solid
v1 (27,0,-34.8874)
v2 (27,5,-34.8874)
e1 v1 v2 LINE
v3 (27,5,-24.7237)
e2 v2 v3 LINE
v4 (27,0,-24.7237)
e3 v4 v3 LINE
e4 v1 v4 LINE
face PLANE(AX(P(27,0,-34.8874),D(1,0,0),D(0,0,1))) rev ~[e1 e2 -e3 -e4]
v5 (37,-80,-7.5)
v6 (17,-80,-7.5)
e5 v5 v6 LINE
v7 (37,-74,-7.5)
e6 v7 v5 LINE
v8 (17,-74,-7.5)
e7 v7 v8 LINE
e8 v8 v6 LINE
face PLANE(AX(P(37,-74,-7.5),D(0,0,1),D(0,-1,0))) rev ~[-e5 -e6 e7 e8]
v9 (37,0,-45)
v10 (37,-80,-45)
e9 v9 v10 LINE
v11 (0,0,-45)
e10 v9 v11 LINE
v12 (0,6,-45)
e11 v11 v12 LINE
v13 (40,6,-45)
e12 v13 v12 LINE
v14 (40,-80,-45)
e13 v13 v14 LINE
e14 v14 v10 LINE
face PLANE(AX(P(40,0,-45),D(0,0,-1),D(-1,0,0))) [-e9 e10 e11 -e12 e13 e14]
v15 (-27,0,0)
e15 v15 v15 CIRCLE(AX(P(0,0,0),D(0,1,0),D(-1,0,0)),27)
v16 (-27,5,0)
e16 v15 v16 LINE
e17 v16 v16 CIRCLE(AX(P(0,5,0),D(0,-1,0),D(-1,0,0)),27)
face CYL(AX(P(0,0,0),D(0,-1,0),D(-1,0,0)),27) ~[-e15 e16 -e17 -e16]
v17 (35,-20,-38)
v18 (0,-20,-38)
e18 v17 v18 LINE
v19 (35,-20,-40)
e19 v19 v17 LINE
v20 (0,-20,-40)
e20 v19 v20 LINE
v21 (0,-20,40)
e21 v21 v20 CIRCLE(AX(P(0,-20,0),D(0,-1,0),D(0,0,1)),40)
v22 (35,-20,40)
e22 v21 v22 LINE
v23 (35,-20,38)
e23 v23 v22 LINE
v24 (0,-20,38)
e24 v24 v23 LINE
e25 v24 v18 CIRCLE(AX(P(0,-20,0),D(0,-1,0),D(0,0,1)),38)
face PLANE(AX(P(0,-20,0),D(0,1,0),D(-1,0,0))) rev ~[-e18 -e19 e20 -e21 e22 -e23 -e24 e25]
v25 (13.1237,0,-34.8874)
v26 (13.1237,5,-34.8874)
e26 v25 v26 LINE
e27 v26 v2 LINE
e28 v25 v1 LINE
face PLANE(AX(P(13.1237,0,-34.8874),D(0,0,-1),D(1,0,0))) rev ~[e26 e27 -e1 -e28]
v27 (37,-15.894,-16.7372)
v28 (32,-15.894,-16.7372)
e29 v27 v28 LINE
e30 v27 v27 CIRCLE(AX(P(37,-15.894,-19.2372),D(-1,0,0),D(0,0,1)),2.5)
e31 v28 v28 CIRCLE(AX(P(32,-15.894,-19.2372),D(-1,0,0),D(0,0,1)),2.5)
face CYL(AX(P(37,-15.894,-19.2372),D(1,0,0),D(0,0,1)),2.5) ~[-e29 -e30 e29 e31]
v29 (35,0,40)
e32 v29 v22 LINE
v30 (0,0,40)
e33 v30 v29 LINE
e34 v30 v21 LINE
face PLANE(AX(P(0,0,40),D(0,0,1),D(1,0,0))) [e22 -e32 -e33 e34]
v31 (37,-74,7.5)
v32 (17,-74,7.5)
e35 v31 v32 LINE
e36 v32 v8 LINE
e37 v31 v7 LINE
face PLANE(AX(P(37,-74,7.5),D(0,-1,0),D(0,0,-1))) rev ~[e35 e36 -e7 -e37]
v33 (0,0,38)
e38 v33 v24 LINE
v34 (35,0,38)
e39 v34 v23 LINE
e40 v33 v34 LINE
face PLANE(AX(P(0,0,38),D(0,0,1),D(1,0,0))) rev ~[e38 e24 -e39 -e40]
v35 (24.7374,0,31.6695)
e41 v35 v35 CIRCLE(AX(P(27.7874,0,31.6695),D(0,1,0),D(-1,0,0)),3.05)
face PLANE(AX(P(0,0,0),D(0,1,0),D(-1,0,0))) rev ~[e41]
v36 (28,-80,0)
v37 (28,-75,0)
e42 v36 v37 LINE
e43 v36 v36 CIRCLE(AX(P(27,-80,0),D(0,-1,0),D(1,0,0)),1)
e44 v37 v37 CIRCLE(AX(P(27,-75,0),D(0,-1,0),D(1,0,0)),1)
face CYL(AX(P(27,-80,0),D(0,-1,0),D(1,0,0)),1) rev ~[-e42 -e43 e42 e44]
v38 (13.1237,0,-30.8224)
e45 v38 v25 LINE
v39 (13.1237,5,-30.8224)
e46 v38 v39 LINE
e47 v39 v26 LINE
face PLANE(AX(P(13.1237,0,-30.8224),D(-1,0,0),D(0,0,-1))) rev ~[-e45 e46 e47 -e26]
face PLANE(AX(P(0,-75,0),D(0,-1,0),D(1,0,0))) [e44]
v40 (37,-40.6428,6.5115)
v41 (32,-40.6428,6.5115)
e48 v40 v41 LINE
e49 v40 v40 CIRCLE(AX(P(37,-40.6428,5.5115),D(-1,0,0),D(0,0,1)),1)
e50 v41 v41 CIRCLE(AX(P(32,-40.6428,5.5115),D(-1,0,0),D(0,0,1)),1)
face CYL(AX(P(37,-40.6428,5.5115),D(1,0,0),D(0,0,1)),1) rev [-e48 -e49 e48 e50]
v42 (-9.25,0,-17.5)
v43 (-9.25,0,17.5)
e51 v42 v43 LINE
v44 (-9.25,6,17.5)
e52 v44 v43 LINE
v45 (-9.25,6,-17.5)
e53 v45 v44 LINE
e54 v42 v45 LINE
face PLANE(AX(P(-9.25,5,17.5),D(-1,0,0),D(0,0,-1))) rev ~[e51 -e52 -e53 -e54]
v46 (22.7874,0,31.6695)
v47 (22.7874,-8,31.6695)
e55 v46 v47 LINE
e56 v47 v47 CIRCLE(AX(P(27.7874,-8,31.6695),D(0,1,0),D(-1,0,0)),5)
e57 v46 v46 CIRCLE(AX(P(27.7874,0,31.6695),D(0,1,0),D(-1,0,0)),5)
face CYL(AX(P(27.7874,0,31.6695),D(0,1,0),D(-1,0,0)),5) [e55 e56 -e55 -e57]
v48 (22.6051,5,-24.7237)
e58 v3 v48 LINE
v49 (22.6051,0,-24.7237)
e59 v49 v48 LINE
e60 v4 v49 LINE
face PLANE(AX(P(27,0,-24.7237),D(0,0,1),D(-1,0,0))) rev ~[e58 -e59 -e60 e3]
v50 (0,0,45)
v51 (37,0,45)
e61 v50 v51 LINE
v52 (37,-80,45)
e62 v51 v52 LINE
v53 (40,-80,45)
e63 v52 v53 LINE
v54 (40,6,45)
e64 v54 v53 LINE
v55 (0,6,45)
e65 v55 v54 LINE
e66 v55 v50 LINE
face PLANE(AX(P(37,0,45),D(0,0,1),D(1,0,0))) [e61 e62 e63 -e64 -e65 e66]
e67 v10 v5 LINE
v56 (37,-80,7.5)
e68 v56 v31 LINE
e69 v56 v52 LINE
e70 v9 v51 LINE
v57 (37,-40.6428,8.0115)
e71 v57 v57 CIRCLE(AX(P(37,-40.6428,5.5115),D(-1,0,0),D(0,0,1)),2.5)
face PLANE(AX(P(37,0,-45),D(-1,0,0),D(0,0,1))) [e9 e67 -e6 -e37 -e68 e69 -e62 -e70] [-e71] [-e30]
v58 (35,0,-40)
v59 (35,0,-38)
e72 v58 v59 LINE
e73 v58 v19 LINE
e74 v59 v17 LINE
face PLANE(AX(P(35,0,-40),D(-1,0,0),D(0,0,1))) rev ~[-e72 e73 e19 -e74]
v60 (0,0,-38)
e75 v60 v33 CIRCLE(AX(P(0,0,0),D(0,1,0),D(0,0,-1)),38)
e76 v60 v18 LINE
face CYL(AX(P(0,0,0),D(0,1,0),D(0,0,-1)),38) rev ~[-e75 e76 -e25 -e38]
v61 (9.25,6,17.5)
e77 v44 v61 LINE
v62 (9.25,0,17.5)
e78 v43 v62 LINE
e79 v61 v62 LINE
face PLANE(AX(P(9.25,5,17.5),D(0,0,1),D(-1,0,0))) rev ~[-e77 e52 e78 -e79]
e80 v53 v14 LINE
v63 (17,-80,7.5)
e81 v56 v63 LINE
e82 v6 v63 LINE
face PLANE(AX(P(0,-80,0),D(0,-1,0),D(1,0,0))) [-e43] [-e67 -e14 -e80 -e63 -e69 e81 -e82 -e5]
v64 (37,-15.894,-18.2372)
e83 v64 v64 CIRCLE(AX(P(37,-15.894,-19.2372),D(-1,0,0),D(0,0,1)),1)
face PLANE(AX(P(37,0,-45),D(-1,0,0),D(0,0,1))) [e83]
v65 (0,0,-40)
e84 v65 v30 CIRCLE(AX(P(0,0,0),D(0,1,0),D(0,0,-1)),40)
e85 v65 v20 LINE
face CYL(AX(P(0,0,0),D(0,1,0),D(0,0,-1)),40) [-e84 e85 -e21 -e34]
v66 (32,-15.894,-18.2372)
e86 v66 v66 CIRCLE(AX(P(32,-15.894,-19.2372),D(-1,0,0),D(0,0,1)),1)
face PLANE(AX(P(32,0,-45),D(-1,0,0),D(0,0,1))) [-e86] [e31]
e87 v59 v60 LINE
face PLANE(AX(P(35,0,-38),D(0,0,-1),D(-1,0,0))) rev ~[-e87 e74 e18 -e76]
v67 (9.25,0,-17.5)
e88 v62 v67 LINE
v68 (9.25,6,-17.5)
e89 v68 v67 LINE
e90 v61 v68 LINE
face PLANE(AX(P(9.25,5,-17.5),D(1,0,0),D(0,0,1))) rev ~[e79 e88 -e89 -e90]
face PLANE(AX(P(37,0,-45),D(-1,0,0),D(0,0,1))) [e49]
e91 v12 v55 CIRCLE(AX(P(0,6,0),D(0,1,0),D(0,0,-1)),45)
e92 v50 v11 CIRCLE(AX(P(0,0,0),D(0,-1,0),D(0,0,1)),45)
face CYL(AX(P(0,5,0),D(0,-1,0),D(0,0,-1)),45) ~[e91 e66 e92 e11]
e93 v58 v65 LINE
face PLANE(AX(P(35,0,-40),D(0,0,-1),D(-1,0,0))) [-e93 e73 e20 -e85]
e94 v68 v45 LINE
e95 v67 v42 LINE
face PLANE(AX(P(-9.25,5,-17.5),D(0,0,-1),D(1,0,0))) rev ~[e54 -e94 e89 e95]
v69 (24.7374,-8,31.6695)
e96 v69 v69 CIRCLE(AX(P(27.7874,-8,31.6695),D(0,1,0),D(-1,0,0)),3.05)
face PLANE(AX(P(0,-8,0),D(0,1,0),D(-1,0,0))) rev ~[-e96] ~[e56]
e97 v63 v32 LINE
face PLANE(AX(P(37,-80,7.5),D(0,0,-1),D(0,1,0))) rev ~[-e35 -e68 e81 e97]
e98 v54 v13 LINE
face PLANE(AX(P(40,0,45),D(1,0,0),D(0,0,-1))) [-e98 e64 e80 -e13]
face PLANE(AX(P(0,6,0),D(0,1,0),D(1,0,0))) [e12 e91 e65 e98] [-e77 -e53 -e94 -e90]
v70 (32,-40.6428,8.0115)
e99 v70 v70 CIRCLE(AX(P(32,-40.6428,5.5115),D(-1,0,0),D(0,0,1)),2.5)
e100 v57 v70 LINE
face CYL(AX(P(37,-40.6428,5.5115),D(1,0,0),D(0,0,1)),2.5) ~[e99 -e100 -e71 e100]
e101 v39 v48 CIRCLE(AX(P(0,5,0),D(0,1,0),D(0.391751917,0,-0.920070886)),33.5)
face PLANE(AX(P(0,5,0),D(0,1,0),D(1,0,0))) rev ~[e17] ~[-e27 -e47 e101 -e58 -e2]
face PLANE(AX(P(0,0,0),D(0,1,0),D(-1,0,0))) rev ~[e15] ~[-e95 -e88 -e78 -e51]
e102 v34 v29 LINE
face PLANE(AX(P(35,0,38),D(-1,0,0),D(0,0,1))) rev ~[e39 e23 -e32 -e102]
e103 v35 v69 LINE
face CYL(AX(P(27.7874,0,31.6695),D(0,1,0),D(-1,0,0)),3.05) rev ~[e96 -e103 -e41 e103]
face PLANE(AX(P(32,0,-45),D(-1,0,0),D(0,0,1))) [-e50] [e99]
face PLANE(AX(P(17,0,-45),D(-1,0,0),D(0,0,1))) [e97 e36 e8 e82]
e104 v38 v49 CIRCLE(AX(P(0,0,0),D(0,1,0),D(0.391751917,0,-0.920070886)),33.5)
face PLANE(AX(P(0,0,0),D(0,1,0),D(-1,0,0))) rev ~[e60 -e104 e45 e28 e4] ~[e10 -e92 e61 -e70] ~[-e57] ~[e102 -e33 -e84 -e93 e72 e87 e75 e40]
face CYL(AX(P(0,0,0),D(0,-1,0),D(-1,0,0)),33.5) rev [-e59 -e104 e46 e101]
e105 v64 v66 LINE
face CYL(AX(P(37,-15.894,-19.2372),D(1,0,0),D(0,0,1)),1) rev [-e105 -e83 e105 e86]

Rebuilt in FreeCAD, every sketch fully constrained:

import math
import FreeCAD as App
import Part
import Sketcher
Q = App.Units.Quantity


def add_polygon(sketch, points):
    """Adds a closed chain of lines whose ends are joined by coincident constraints."""
    first, n = sketch.GeometryCount, len(points)
    for a, b in zip(points, points[1:] + points[:1]):
        sketch.addGeometry(Part.LineSegment(App.Vector(*a, 0), App.Vector(*b, 0)), False)
    for i in range(n):
        sketch.addConstraint(Sketcher.Constraint("Coincident", first + i, 2, first + (i + 1) % n, 1))

doc = App.newDocument("Part")
body = doc.addObject("PartDesign::Body", "Body")
body.AllowCompound = True

# Sketch on XZ plane
sketch1 = doc.addObject("Sketcher::SketchObject", "Sketch")
body.addObject(sketch1)
sketch1.AttachmentSupport = (doc.XZ_Plane, [""])
sketch1.MapMode = "FlatFace"
sketch1.addGeometry(Part.LineSegment(App.Vector(40, 45, 0), App.Vector(40, -45, 0)), False)  # 0
sketch1.addGeometry(Part.LineSegment(App.Vector(40, -45, 0), App.Vector(0, -45, 0)), False)  # 1
sketch1.addGeometry(Part.ArcOfCircle(Part.Circle(App.Vector(0, 0, 0), App.Vector(0, 0, 1), 45), math.radians(90), math.radians(270)), False)  # 2
sketch1.addGeometry(Part.LineSegment(App.Vector(0, 45, 0), App.Vector(40, 45, 0)), False)  # 3
sketch1.addGeometry(Part.Circle(App.Vector(0, 0, 0), App.Vector(0, 0, 1), 34), False)  # 4
sketch1.addGeometry(Part.Circle(App.Vector(0, 0, 0), App.Vector(0, 0, 1), 27), False)  # 5
add_polygon(sketch1, [(-9, -18), (9, -18), (9, 18), (-9, 18)])  # lines 6-9
sketch1.addConstraint(Sketcher.Constraint("Coincident", 0, 2, 1, 1))
sketch1.addConstraint(Sketcher.Constraint("Tangent", 1, 2, 2, 2))
sketch1.addConstraint(Sketcher.Constraint("Tangent", 2, 1, 3, 1))
sketch1.addConstraint(Sketcher.Constraint("Coincident", 3, 2, 0, 1))
sketch1.addConstraint(Sketcher.Constraint("Vertical", 0))
sketch1.addConstraint(Sketcher.Constraint("Horizontal", 1))
sketch1.addConstraint(Sketcher.Constraint("Horizontal", 3))
sketch1.addConstraint(Sketcher.Constraint("Horizontal", 6))
sketch1.addConstraint(Sketcher.Constraint("Vertical", 7))
sketch1.addConstraint(Sketcher.Constraint("Horizontal", 8))
sketch1.addConstraint(Sketcher.Constraint("Vertical", 9))
sketch1.addConstraint(Sketcher.Constraint("Coincident", 2, 3, -1, 1))
sketch1.addConstraint(Sketcher.Constraint("Coincident", 4, 3, -1, 1))
sketch1.addConstraint(Sketcher.Constraint("Coincident", 5, 3, -1, 1))
sketch1.addConstraint(Sketcher.Constraint("Symmetric", 6, 2, 8, 2, -1, 1))
sketch1.addConstraint(Sketcher.Constraint("Diameter", 4, Q("67 mm")))
sketch1.addConstraint(Sketcher.Constraint("Diameter", 5, Q("54 mm")))
sketch1.addConstraint(Sketcher.Constraint("DistanceY", 7, 1, 7, 2, Q("35 mm")))
sketch1.addConstraint(Sketcher.Constraint("DistanceX", 6, 1, 6, 2, Q("18.5 mm")))
sketch1.addConstraint(Sketcher.Constraint("Radius", 2, Q("45 mm")))
sketch1.addConstraint(Sketcher.Constraint("DistanceX", 1, 2, 1, 1, Q("40 mm")))
pad1 = doc.addObject("PartDesign::Pad", "Pad")
body.addObject(pad1)
pad1.Profile = sketch1
pad1.Length = 5
pad1.Reversed = True

# Sketch on XZ plane
sketch2 = doc.addObject("Sketcher::SketchObject", "Sketch001")
body.addObject(sketch2)
sketch2.AttachmentSupport = (doc.XZ_Plane, [""])
sketch2.MapMode = "FlatFace"
sketch2.AttachmentOffset = App.Placement(App.Vector(0, 0, -5), App.Rotation())
sketch2.addGeometry(Part.LineSegment(App.Vector(40, 45, 0), App.Vector(40, -45, 0)), False)
sketch2.addGeometry(Part.LineSegment(App.Vector(40, -45, 0), App.Vector(0, -45, 0)), False)
sketch2.addGeometry(Part.ArcOfCircle(Part.Circle(App.Vector(0, 0, 0), App.Vector(0, 0, 1), 45), math.radians(90), math.radians(270)), False)
sketch2.addGeometry(Part.LineSegment(App.Vector(0, 45, 0), App.Vector(40, 45, 0)), False)
sketch2.addConstraint(Sketcher.Constraint("Coincident", 0, 2, 1, 1))
sketch2.addConstraint(Sketcher.Constraint("Tangent", 1, 2, 2, 2))
sketch2.addConstraint(Sketcher.Constraint("Tangent", 2, 1, 3, 1))
sketch2.addConstraint(Sketcher.Constraint("Coincident", 3, 2, 0, 1))
sketch2.addConstraint(Sketcher.Constraint("Vertical", 0))
sketch2.addConstraint(Sketcher.Constraint("Horizontal", 1))
sketch2.addConstraint(Sketcher.Constraint("Horizontal", 3))
sketch2.addConstraint(Sketcher.Constraint("Coincident", 2, 3, -1, 1))
sketch2.addConstraint(Sketcher.Constraint("Radius", 2, Q("45 mm")))
sketch2.addConstraint(Sketcher.Constraint("DistanceX", 1, 2, 1, 1, Q("40 mm")))
pad2 = doc.addObject("PartDesign::Pad", "Pad001")
body.addObject(pad2)
pad2.Profile = sketch2
pad2.Length = 1
pad2.Reversed = True

# Sketch on XZ plane
sketch3 = doc.addObject("Sketcher::SketchObject", "Sketch002")
body.addObject(sketch3)
sketch3.AttachmentSupport = (doc.XZ_Plane, [""])
sketch3.MapMode = "FlatFace"
sketch3.AttachmentOffset = App.Placement(App.Vector(0, 0, -5), App.Rotation())
add_polygon(sketch3, [(-9, 18), (-9, -18), (9, -18), (9, 18)])  # lines 0-3
sketch3.addConstraint(Sketcher.Constraint("Vertical", 0))
sketch3.addConstraint(Sketcher.Constraint("Horizontal", 1))
sketch3.addConstraint(Sketcher.Constraint("Vertical", 2))
sketch3.addConstraint(Sketcher.Constraint("Horizontal", 3))
sketch3.addConstraint(Sketcher.Constraint("Symmetric", 0, 2, 2, 2, -1, 1))
sketch3.addConstraint(Sketcher.Constraint("DistanceY", 0, 2, 0, 1, Q("35 mm")))
sketch3.addConstraint(Sketcher.Constraint("DistanceX", 1, 1, 1, 2, Q("18.5 mm")))
pocket1 = doc.addObject("PartDesign::Pocket", "Pocket")
body.addObject(pocket1)
pocket1.Profile = sketch3
pocket1.Type = "ThroughAll"

# Sketch on XZ plane
sketch4 = doc.addObject("Sketcher::SketchObject", "Sketch003")
body.addObject(sketch4)
sketch4.AttachmentSupport = (doc.XZ_Plane, [""])
sketch4.MapMode = "FlatFace"
sketch4.addGeometry(Part.LineSegment(App.Vector(13.1, -34.9, 0), App.Vector(13.1, -30.8, 0)), False)
sketch4.addGeometry(Part.ArcOfCircle(Part.Circle(App.Vector(0, 0, 0), App.Vector(0, 0, 1), 33.5), math.radians(-66.94), math.radians(-47.56)), False)
sketch4.addGeometry(Part.LineSegment(App.Vector(22.6, -24.7, 0), App.Vector(27, -24.7, 0)), False)
sketch4.addGeometry(Part.LineSegment(App.Vector(27, -24.7, 0), App.Vector(27, -34.9, 0)), False)
sketch4.addGeometry(Part.LineSegment(App.Vector(27, -34.9, 0), App.Vector(13.1, -34.9, 0)), False)
sketch4.addConstraint(Sketcher.Constraint("Coincident", 0, 2, 1, 1))
sketch4.addConstraint(Sketcher.Constraint("Coincident", 1, 2, 2, 1))
sketch4.addConstraint(Sketcher.Constraint("Coincident", 2, 2, 3, 1))
sketch4.addConstraint(Sketcher.Constraint("Coincident", 3, 2, 4, 1))
sketch4.addConstraint(Sketcher.Constraint("Coincident", 4, 2, 0, 1))
sketch4.addConstraint(Sketcher.Constraint("Vertical", 0))
sketch4.addConstraint(Sketcher.Constraint("Horizontal", 2))
sketch4.addConstraint(Sketcher.Constraint("Vertical", 3))
sketch4.addConstraint(Sketcher.Constraint("Horizontal", 4))
sketch4.addConstraint(Sketcher.Constraint("Coincident", 1, 3, -1, 1))
sketch4.addConstraint(Sketcher.Constraint("Radius", 1, Q("33.5 mm")))
sketch4.addConstraint(Sketcher.Constraint("DistanceX", -1, 1, 2, 2, Q("27 mm")))
sketch4.addConstraint(Sketcher.Constraint("DistanceX", 2, 1, 2, 2, Q("4.395 mm")))
sketch4.addConstraint(Sketcher.Constraint("DistanceY", 0, 1, 0, 2, Q("4.065 mm")))
sketch4.addConstraint(Sketcher.Constraint("DistanceX", 4, 2, 4, 1, Q("13.8763 mm")))
pocket2 = doc.addObject("PartDesign::Pocket", "Pocket001")
body.addObject(pocket2)
pocket2.Profile = sketch4
pocket2.Length = 5

# Sketch on XZ plane
sketch5 = doc.addObject("Sketcher::SketchObject", "Sketch004")
body.addObject(sketch5)
sketch5.AttachmentSupport = (doc.XZ_Plane, [""])
sketch5.MapMode = "FlatFace"
add_polygon(sketch5, [(37, -45), (40, -45), (40, 45), (37, 45)])  # lines 0-3
sketch5.addConstraint(Sketcher.Constraint("Horizontal", 0))
sketch5.addConstraint(Sketcher.Constraint("Vertical", 1))
sketch5.addConstraint(Sketcher.Constraint("Horizontal", 2))
sketch5.addConstraint(Sketcher.Constraint("Vertical", 3))
sketch5.addConstraint(Sketcher.Constraint("DistanceX", 0, 1, 0, 2, Q("3 mm")))
sketch5.addConstraint(Sketcher.Constraint("DistanceY", 1, 1, 1, 2, Q("90 mm")))
sketch5.addConstraint(Sketcher.Constraint("DistanceX", -1, 1, 0, 2, Q("40 mm")))
sketch5.addConstraint(Sketcher.Constraint("DistanceY", 0, 2, -1, 1, Q("45 mm")))
pad3 = doc.addObject("PartDesign::Pad", "Pad002")
body.addObject(pad3)
pad3.Profile = sketch5
pad3.Length = 80

# Sketch on XZ plane
sketch6 = doc.addObject("Sketcher::SketchObject", "Sketch005")
body.addObject(sketch6)
sketch6.AttachmentSupport = (doc.XZ_Plane, [""])
sketch6.MapMode = "FlatFace"
sketch6.addGeometry(Part.Circle(App.Vector(27.8, 31.7, 0), App.Vector(0, 0, 1), 5), False)
sketch6.addGeometry(Part.Circle(App.Vector(27.8, 31.7, 0), App.Vector(0, 0, 1), 3), False)
sketch6.addConstraint(Sketcher.Constraint("Coincident", 1, 3, 0, 3))
sketch6.addConstraint(Sketcher.Constraint("Diameter", 0, Q("10 mm")))
sketch6.addConstraint(Sketcher.Constraint("Diameter", 1, Q("6.1 mm")))
sketch6.addConstraint(Sketcher.Constraint("DistanceX", -1, 1, 0, 3, Q("27.7874 mm")))
sketch6.addConstraint(Sketcher.Constraint("DistanceY", -1, 1, 0, 3, Q("31.6695 mm")))
pad4 = doc.addObject("PartDesign::Pad", "Pad003")
body.addObject(pad4)
pad4.Profile = sketch6
pad4.Length = 8

# Sketch on XZ plane
sketch7 = doc.addObject("Sketcher::SketchObject", "Sketch006")
body.addObject(sketch7)
sketch7.AttachmentSupport = (doc.XZ_Plane, [""])
sketch7.MapMode = "FlatFace"
sketch7.addGeometry(Part.ArcOfCircle(Part.Circle(App.Vector(0, 0, 0), App.Vector(0, 0, 1), 38), math.radians(90), math.radians(270)), False)
sketch7.addGeometry(Part.LineSegment(App.Vector(0, -38, 0), App.Vector(35, -38, 0)), False)
sketch7.addGeometry(Part.LineSegment(App.Vector(35, -38, 0), App.Vector(35, -40, 0)), False)
sketch7.addGeometry(Part.LineSegment(App.Vector(35, -40, 0), App.Vector(0, -40, 0)), False)
sketch7.addGeometry(Part.ArcOfCircle(Part.Circle(App.Vector(0, 0, 0), App.Vector(0, 0, 1), 40), math.radians(90), math.radians(270)), False)
sketch7.addGeometry(Part.LineSegment(App.Vector(0, 40, 0), App.Vector(35, 40, 0)), False)
sketch7.addGeometry(Part.LineSegment(App.Vector(35, 40, 0), App.Vector(35, 38, 0)), False)
sketch7.addGeometry(Part.LineSegment(App.Vector(35, 38, 0), App.Vector(0, 38, 0)), False)
sketch7.addConstraint(Sketcher.Constraint("Tangent", 0, 2, 1, 1))
sketch7.addConstraint(Sketcher.Constraint("Coincident", 1, 2, 2, 1))
sketch7.addConstraint(Sketcher.Constraint("Coincident", 2, 2, 3, 1))
sketch7.addConstraint(Sketcher.Constraint("Tangent", 3, 2, 4, 2))
sketch7.addConstraint(Sketcher.Constraint("Tangent", 4, 1, 5, 1))
sketch7.addConstraint(Sketcher.Constraint("Coincident", 5, 2, 6, 1))
sketch7.addConstraint(Sketcher.Constraint("Coincident", 6, 2, 7, 1))
sketch7.addConstraint(Sketcher.Constraint("Tangent", 7, 2, 0, 1))
sketch7.addConstraint(Sketcher.Constraint("Horizontal", 1))
sketch7.addConstraint(Sketcher.Constraint("Vertical", 2))
sketch7.addConstraint(Sketcher.Constraint("Horizontal", 3))
sketch7.addConstraint(Sketcher.Constraint("Horizontal", 5))
sketch7.addConstraint(Sketcher.Constraint("Vertical", 6))
sketch7.addConstraint(Sketcher.Constraint("Horizontal", 7))
sketch7.addConstraint(Sketcher.Constraint("Coincident", 0, 3, -1, 1))
sketch7.addConstraint(Sketcher.Constraint("Coincident", 4, 3, -1, 1))
sketch7.addConstraint(Sketcher.Constraint("Vertical", 2, 2, 5, 2))
sketch7.addConstraint(Sketcher.Constraint("DistanceX", 1, 1, 1, 2, Q("35 mm")))
sketch7.addConstraint(Sketcher.Constraint("DistanceY", 2, 2, 2, 1, Q("2 mm")))
sketch7.addConstraint(Sketcher.Constraint("Radius", 0, Q("38 mm")))
pad5 = doc.addObject("PartDesign::Pad", "Pad004")
body.addObject(pad5)
pad5.Profile = sketch7
pad5.Length = 20

# Sketch on YZ plane
sketch8 = doc.addObject("Sketcher::SketchObject", "Sketch007")
body.addObject(sketch8)
sketch8.AttachmentSupport = (doc.YZ_Plane, [""])
sketch8.MapMode = "FlatFace"
sketch8.AttachmentOffset = App.Placement(App.Vector(0, 0, 37), App.Rotation())
add_polygon(sketch8, [(-74, -8), (-80, -8), (-80, 8), (-74, 8)])  # lines 0-3
sketch8.addConstraint(Sketcher.Constraint("Horizontal", 0))
sketch8.addConstraint(Sketcher.Constraint("Vertical", 1))
sketch8.addConstraint(Sketcher.Constraint("Horizontal", 2))
sketch8.addConstraint(Sketcher.Constraint("Vertical", 3))
sketch8.addConstraint(Sketcher.Constraint("DistanceX", 0, 2, 0, 1, Q("6 mm")))
sketch8.addConstraint(Sketcher.Constraint("DistanceY", 1, 1, 1, 2, Q("15 mm")))
sketch8.addConstraint(Sketcher.Constraint("DistanceX", 0, 2, -1, 1, Q("80 mm")))
sketch8.addConstraint(Sketcher.Constraint("DistanceY", 0, 2, -1, 1, Q("7.5 mm")))
pad6 = doc.addObject("PartDesign::Pad", "Pad005")
body.addObject(pad6)
pad6.Profile = sketch8
pad6.Length = 20
pad6.Reversed = True

# Sketch on XZ plane
sketch9 = doc.addObject("Sketcher::SketchObject", "Sketch008")
body.addObject(sketch9)
sketch9.AttachmentSupport = (doc.XZ_Plane, [""])
sketch9.MapMode = "FlatFace"
sketch9.AttachmentOffset = App.Placement(App.Vector(0, 0, 80), App.Rotation())
sketch9.addGeometry(Part.Circle(App.Vector(27, 0, 0), App.Vector(0, 0, 1), 1), False)
sketch9.addConstraint(Sketcher.Constraint("PointOnObject", 0, 3, -1))
sketch9.addConstraint(Sketcher.Constraint("Diameter", 0, Q("2 mm")))
sketch9.addConstraint(Sketcher.Constraint("DistanceX", -1, 1, 0, 3, Q("27 mm")))
pocket3 = doc.addObject("PartDesign::Pocket", "Pocket002")
body.addObject(pocket3)
pocket3.Profile = sketch9
pocket3.Length = 5

# Sketch on YZ plane
sketch10 = doc.addObject("Sketcher::SketchObject", "Sketch009")
body.addObject(sketch10)
sketch10.AttachmentSupport = (doc.YZ_Plane, [""])
sketch10.MapMode = "FlatFace"
sketch10.AttachmentOffset = App.Placement(App.Vector(0, 0, 37), App.Rotation())
sketch10.addGeometry(Part.Circle(App.Vector(-15.9, -19.2, 0), App.Vector(0, 0, 1), 2.5), False)
sketch10.addGeometry(Part.Circle(App.Vector(-15.9, -19.2, 0), App.Vector(0, 0, 1), 1), False)
sketch10.addGeometry(Part.Circle(App.Vector(-40.6, 5.5, 0), App.Vector(0, 0, 1), 2.5), False)
sketch10.addGeometry(Part.Circle(App.Vector(-40.6, 5.5, 0), App.Vector(0, 0, 1), 1), False)
sketch10.addConstraint(Sketcher.Constraint("Coincident", 1, 3, 0, 3))
sketch10.addConstraint(Sketcher.Constraint("Coincident", 3, 3, 2, 3))
sketch10.addConstraint(Sketcher.Constraint("Equal", 0, 2))
sketch10.addConstraint(Sketcher.Constraint("Equal", 1, 3))
sketch10.addConstraint(Sketcher.Constraint("Diameter", 0, Q("5 mm")))
sketch10.addConstraint(Sketcher.Constraint("Diameter", 1, Q("2 mm")))
sketch10.addConstraint(Sketcher.Constraint("DistanceX", 0, 3, -1, 1, Q("15.894 mm")))
sketch10.addConstraint(Sketcher.Constraint("DistanceY", 0, 3, -1, 1, Q("19.2372 mm")))
sketch10.addConstraint(Sketcher.Constraint("DistanceX", 2, 3, -1, 1, Q("40.6428 mm")))
sketch10.addConstraint(Sketcher.Constraint("DistanceY", -1, 1, 2, 3, Q("5.5115 mm")))
pad7 = doc.addObject("PartDesign::Pad", "Pad006")
body.addObject(pad7)
pad7.Profile = sketch10
pad7.Length = 5
pad7.Reversed = True

doc.recompute()
